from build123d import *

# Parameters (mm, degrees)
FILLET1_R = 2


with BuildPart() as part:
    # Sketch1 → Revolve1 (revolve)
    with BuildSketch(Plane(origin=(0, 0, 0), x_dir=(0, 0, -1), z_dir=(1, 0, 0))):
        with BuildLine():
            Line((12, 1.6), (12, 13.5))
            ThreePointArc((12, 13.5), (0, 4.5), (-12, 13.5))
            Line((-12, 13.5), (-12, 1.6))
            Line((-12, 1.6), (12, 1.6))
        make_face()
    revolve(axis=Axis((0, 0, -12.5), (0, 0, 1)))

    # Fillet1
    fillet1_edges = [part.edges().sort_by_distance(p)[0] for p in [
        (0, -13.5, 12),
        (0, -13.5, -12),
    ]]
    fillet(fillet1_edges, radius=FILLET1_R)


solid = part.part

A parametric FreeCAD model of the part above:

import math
import FreeCAD as App
import Part
import Sketcher
Q = App.Units.Quantity


def edges_at(feature, points):
    """Names of the edges that pass closest to the given points."""
    edges = feature.Shape.Edges
    near = lambda p: min(range(len(edges)), key=lambda i: edges[i].distToShape(Part.Vertex(*p))[0])
    return sorted({f"Edge{near(p) + 1}" for p in points})

doc = App.newDocument("Part")
body = doc.addObject("PartDesign::Body", "Body")

sketch1 = body.newObject("Sketcher::SketchObject", "Sketch")
sketch1.AttachmentSupport = (doc.getObject("YZ_Plane"), [""])
sketch1.MapMode = "FlatFace"
sketch1.addGeometry(Part.LineSegment(App.Vector(2, -12, 0), App.Vector(14, -12, 0)), False)
sketch1.addGeometry(Part.ArcOfCircle(Part.Circle(App.Vector(17, 0, 0), App.Vector(0, 0, 1), 12), math.radians(106), math.radians(254)), False)
sketch1.addGeometry(Part.LineSegment(App.Vector(14, 12, 0), App.Vector(2, 12, 0)), False)
sketch1.addGeometry(Part.LineSegment(App.Vector(2, 12, 0), App.Vector(2, -12, 0)), False)
sketch1.addConstraint(Sketcher.Constraint("Coincident", 0, 2, 1, 2))
sketch1.addConstraint(Sketcher.Constraint("Coincident", 1, 1, 2, 1))
sketch1.addConstraint(Sketcher.Constraint("Coincident", 2, 2, 3, 1))
sketch1.addConstraint(Sketcher.Constraint("Coincident", 3, 2, 0, 1))
sketch1.addConstraint(Sketcher.Constraint("Horizontal", 0))
sketch1.addConstraint(Sketcher.Constraint("Horizontal", 2))
sketch1.addConstraint(Sketcher.Constraint("Vertical", 3))
sketch1.addConstraint(Sketcher.Constraint("Symmetric", 0, 2, 1, 1, -1))
sketch1.addConstraint(Sketcher.Constraint("Radius", 1, Q("12.5 mm")))
sketch1.addConstraint(Sketcher.Constraint("DistanceY", 3, 2, 3, 1, Q("24 mm")))
sketch1.addConstraint(Sketcher.Constraint("DistanceX", 0, 1, 0, 2, Q("11.9 mm")))
sketch1.addConstraint(Sketcher.Constraint("DistanceX", -1, 1, 1, 3, Q("17 mm")))
revolution = body.newObject("PartDesign::Revolution", "Revolution")
revolution.Profile = sketch1
revolution.ReferenceAxis = (sketch1, ["V_Axis"])
revolution.Angle = 360
doc.recompute()

fillet = body.newObject("PartDesign::Fillet", "Fillet")
fillet.Base = (revolution, edges_at(revolution, [(0, -13.5, 12), (0, -13.5, -12)]))
fillet.Radius = 2

doc.recompute()
